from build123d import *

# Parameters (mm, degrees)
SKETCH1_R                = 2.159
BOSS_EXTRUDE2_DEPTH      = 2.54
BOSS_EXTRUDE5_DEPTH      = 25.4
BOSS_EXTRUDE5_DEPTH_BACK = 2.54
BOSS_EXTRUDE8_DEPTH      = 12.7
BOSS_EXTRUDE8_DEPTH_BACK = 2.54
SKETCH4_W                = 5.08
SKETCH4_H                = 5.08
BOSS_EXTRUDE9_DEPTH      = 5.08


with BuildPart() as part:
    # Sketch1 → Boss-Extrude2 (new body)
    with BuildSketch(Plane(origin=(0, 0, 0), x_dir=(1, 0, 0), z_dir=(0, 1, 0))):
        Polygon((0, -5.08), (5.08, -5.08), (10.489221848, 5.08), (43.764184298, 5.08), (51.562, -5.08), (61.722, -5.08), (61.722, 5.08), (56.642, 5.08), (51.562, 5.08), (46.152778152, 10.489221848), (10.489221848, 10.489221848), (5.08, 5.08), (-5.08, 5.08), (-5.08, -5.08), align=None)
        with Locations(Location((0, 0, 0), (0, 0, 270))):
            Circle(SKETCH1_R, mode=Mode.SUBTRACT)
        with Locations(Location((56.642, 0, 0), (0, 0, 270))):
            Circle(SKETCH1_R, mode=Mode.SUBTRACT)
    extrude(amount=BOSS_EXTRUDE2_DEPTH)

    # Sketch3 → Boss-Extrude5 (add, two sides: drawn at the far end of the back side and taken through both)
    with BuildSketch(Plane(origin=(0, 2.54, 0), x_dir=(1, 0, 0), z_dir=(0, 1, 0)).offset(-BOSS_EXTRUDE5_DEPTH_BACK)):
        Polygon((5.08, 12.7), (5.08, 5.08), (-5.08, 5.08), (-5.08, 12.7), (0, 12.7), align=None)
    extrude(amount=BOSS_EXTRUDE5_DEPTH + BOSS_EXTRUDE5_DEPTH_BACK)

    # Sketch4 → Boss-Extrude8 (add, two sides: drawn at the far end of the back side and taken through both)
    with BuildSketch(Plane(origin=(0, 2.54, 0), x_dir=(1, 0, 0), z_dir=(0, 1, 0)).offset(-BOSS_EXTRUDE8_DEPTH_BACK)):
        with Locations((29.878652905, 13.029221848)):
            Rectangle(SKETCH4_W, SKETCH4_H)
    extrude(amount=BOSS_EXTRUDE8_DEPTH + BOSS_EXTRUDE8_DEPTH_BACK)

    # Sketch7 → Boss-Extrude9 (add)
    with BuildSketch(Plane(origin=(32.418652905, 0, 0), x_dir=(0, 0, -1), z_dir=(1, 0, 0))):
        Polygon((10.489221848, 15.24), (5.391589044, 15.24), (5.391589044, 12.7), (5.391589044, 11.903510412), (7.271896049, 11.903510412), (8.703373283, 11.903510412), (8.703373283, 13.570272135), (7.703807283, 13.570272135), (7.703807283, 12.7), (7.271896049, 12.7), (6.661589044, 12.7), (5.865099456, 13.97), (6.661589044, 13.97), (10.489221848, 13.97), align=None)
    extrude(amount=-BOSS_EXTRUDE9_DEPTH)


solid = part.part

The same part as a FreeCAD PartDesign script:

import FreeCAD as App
import Part
import Sketcher
from FreeCAD import Vector
Q = App.Units.Quantity


def add_polygon(sketch, points):
    """Adds a closed chain of lines whose ends are joined by coincident constraints."""
    first, n = sketch.GeometryCount, len(points)
    for a, b in zip(points, points[1:] + points[:1]):
        sketch.addGeometry(Part.LineSegment(App.Vector(*a, 0), App.Vector(*b, 0)), False)
    for i in range(n):
        sketch.addConstraint(Sketcher.Constraint("Coincident", first + i, 2, first + (i + 1) % n, 1))

doc = App.newDocument("Part")
body = doc.addObject("PartDesign::Body", "Body")

# Sketch on XZ plane
sketch1 = body.newObject("Sketcher::SketchObject", "Sketch")
sketch1.AttachmentSupport = (doc.getObject("XZ_Plane"), [""])
sketch1.MapMode = "FlatFace"
add_polygon(sketch1, [(5.1, 5.1), (10.5, -5.1), (43.8, -5.1), (51.6, 5.1), (61.7, 5.1), (61.7, -5.1), (51.6, -5.1), (46.2, -10.5), (10.5, -10.5), (5.1, -5.1), (-5.1, -5.1), (-5.1, 5.1)])  # lines 0-11
sketch1.addGeometry(Part.Circle(Vector(0, 0, 0), Vector(0, 0, 1), 2.2), False)  # 12
sketch1.addGeometry(Part.Circle(Vector(56.6, 0, 0), Vector(0, 0, 1), 2.2), False)  # 13
sketch1.addConstraint([
    Sketcher.Constraint("Horizontal", 1),
    Sketcher.Constraint("Horizontal", 3),
    Sketcher.Constraint("Vertical", 4),
    Sketcher.Constraint("Horizontal", 5),
    Sketcher.Constraint("Horizontal", 7),
    Sketcher.Constraint("Horizontal", 9),
    Sketcher.Constraint("Vertical", 10),
    Sketcher.Constraint("Horizontal", 11),
    Sketcher.Constraint("Coincident", 12, 3, -1, 1),
    Sketcher.Constraint("Equal", 12, 13),
    Sketcher.Constraint("Symmetric", 8, 2, 10, 2, -1, 1),
    Sketcher.Constraint("Symmetric", 2, 2, 5, 2, -1),
    Sketcher.Constraint("PointOnObject", 13, 3, -1),
    Sketcher.Constraint("Perpendicular", 6, 8),
    Sketcher.Constraint("Horizontal", 1, 2, 4, 2),
    Sketcher.Constraint("Horizontal", 5, 2, 8, 2),
    Sketcher.Constraint("Vertical", 0, 2, 7, 2),
    Sketcher.Constraint("Vertical", 8, 2, 11, 2),
    Sketcher.Constraint("Equal", 5, 9),
    Sketcher.Constraint("Equal", 11, 4),
    Sketcher.Constraint("Equal", 6, 8),
    Sketcher.Constraint("Diameter", 12, Q("0.17 in")),
    Sketcher.Constraint("DistanceX", 3, 1, 3, 2, Q("0.4 in")),
    Sketcher.Constraint("DistanceX", 2, 2, 13, 3, Q("0.2 in")),
    Sketcher.Constraint("DistanceX", -1, 1, 13, 3, Q("2.23 in")),
    Sketcher.Constraint("Distance", 2, Q("12.807479 mm")),
    Sketcher.Constraint("DistanceX", 1, 1, 1, 2, Q("33.274962 mm")),
])
pad1 = body.newObject("PartDesign::Pad", "Pad")
pad1.Profile = sketch1
pad1.Length = Q("0.1 in")
pad1.Reversed = True

# Sketch on XZ plane
sketch2 = body.newObject("Sketcher::SketchObject", "Sketch001")
sketch2.AttachmentSupport = (doc.getObject("XZ_Plane"), [""])
sketch2.MapMode = "FlatFace"
sketch2.AttachmentOffset = App.Placement(Vector(0, 0, -0.1 * 25.4), App.Rotation())
add_polygon(sketch2, [(5, -5), (5, -13), (-5, -13), (-5, -5)])  # lines 0-3
sketch2.addConstraint([
    Sketcher.Constraint("Vertical", 0),
    Sketcher.Constraint("Horizontal", 1),
    Sketcher.Constraint("Vertical", 2),
    Sketcher.Constraint("Horizontal", 3),
    Sketcher.Constraint("DistanceX", 1, 2, 1, 1, Q("0.4 in")),
    Sketcher.Constraint("DistanceY", 0, 2, 0, 1, Q("0.3 in")),
    Sketcher.Constraint("DistanceX", -1, 1, 0, 2, Q("0.2 in")),
    Sketcher.Constraint("DistanceY", 0, 2, -1, 1, Q("0.5 in")),
])
pad2 = body.newObject("PartDesign::Pad", "Pad001")
pad2.Profile = sketch2
pad2.Type = "TwoLengths"
pad2.Length = Q("1 in")
pad2.Length2 = Q("0.1 in")
pad2.Reversed = True

# Sketch on XZ plane
sketch3 = body.newObject("Sketcher::SketchObject", "Sketch002")
sketch3.AttachmentSupport = (doc.getObject("XZ_Plane"), [""])
sketch3.MapMode = "FlatFace"
sketch3.AttachmentOffset = App.Placement(Vector(0, 0, -0.1 * 25.4), App.Rotation())
add_polygon(sketch3, [(27, -16), (27, -10), (32, -10), (32, -16)])  # lines 0-3
sketch3.addConstraint([
    Sketcher.Constraint("Vertical", 0),
    Sketcher.Constraint("Horizontal", 1),
    Sketcher.Constraint("Vertical", 2),
    Sketcher.Constraint("Horizontal", 3),
    Sketcher.Constraint("Equal", 3, 0),
    Sketcher.Constraint("DistanceX", 1, 1, 1, 2, Q("0.2 in")),
    Sketcher.Constraint("DistanceY", 0, 2, -1, 1, Q("10.489222 mm")),
    Sketcher.Constraint("DistanceX", -1, 1, 0, 2, Q("27.338653 mm")),
])
pad3 = body.newObject("PartDesign::Pad", "Pad002")
pad3.Profile = sketch3
pad3.Type = "TwoLengths"
pad3.Length = Q("0.5 in")
pad3.Length2 = Q("0.1 in")
pad3.Reversed = True

# Sketch on YZ plane
sketch4 = body.newObject("Sketcher::SketchObject", "Sketch003")
sketch4.AttachmentSupport = (doc.getObject("YZ_Plane"), [""])
sketch4.MapMode = "FlatFace"
sketch4.AttachmentOffset = App.Placement(Vector(0, 0, 32.418653), App.Rotation())
add_polygon(sketch4, [(15.2, -10.5), (15.2, -5.4), (11.9, -5.4), (11.9, -8.7), (13.6, -8.7), (13.6, -7.7), (12.7, -7.7), (12.7, -6.7), (14, -5.9), (14, -10.5)])  # lines 0-9
sketch4.addConstraint([
    Sketcher.Constraint("Vertical", 0),
    Sketcher.Constraint("Horizontal", 1),
    Sketcher.Constraint("Vertical", 2),
    Sketcher.Constraint("Horizontal", 3),
    Sketcher.Constraint("Vertical", 4),
    Sketcher.Constraint("Horizontal", 5),
    Sketcher.Constraint("Vertical", 6),
    Sketcher.Constraint("Vertical", 8),
    Sketcher.Constraint("Horizontal", 9),
    Sketcher.Constraint("DistanceX", 9, 1, 9, 2, Q("0.05 in")),
    Sketcher.Constraint("DistanceX", -1, 1, 0, 2, Q("0.6 in")),
    Sketcher.Constraint("DistanceX", -1, 1, 5, 2, Q("0.5 in")),
    Sketcher.Constraint("DistanceY", 6, 2, 1, 2, Q("0.05 in")),
    Sketcher.Constraint("Distance", 7, Q("1.499098 mm")),
    Sketcher.Constraint("DistanceX", 1, 2, 1, 1, Q("3.33649 mm")),
    Sketcher.Constraint("DistanceX", 3, 1, 3, 2, Q("1.666762 mm")),
    Sketcher.Constraint("DistanceY", 6, 1, 6, 2, Q("1.042218 mm")),
    Sketcher.Constraint("DistanceY", 7, 2, -1, 1, Q("5.865099 mm")),
    Sketcher.Constraint("DistanceY", 0, 1, 0, 2, Q("5.097633 mm")),
    Sketcher.Constraint("DistanceY", 2, 2, 2, 1, Q("3.311784 mm")),
])
pad4 = body.newObject("PartDesign::Pad", "Pad003")
pad4.Profile = sketch4
pad4.Length = Q("0.2 in")
pad4.Reversed = True

doc.recompute()
